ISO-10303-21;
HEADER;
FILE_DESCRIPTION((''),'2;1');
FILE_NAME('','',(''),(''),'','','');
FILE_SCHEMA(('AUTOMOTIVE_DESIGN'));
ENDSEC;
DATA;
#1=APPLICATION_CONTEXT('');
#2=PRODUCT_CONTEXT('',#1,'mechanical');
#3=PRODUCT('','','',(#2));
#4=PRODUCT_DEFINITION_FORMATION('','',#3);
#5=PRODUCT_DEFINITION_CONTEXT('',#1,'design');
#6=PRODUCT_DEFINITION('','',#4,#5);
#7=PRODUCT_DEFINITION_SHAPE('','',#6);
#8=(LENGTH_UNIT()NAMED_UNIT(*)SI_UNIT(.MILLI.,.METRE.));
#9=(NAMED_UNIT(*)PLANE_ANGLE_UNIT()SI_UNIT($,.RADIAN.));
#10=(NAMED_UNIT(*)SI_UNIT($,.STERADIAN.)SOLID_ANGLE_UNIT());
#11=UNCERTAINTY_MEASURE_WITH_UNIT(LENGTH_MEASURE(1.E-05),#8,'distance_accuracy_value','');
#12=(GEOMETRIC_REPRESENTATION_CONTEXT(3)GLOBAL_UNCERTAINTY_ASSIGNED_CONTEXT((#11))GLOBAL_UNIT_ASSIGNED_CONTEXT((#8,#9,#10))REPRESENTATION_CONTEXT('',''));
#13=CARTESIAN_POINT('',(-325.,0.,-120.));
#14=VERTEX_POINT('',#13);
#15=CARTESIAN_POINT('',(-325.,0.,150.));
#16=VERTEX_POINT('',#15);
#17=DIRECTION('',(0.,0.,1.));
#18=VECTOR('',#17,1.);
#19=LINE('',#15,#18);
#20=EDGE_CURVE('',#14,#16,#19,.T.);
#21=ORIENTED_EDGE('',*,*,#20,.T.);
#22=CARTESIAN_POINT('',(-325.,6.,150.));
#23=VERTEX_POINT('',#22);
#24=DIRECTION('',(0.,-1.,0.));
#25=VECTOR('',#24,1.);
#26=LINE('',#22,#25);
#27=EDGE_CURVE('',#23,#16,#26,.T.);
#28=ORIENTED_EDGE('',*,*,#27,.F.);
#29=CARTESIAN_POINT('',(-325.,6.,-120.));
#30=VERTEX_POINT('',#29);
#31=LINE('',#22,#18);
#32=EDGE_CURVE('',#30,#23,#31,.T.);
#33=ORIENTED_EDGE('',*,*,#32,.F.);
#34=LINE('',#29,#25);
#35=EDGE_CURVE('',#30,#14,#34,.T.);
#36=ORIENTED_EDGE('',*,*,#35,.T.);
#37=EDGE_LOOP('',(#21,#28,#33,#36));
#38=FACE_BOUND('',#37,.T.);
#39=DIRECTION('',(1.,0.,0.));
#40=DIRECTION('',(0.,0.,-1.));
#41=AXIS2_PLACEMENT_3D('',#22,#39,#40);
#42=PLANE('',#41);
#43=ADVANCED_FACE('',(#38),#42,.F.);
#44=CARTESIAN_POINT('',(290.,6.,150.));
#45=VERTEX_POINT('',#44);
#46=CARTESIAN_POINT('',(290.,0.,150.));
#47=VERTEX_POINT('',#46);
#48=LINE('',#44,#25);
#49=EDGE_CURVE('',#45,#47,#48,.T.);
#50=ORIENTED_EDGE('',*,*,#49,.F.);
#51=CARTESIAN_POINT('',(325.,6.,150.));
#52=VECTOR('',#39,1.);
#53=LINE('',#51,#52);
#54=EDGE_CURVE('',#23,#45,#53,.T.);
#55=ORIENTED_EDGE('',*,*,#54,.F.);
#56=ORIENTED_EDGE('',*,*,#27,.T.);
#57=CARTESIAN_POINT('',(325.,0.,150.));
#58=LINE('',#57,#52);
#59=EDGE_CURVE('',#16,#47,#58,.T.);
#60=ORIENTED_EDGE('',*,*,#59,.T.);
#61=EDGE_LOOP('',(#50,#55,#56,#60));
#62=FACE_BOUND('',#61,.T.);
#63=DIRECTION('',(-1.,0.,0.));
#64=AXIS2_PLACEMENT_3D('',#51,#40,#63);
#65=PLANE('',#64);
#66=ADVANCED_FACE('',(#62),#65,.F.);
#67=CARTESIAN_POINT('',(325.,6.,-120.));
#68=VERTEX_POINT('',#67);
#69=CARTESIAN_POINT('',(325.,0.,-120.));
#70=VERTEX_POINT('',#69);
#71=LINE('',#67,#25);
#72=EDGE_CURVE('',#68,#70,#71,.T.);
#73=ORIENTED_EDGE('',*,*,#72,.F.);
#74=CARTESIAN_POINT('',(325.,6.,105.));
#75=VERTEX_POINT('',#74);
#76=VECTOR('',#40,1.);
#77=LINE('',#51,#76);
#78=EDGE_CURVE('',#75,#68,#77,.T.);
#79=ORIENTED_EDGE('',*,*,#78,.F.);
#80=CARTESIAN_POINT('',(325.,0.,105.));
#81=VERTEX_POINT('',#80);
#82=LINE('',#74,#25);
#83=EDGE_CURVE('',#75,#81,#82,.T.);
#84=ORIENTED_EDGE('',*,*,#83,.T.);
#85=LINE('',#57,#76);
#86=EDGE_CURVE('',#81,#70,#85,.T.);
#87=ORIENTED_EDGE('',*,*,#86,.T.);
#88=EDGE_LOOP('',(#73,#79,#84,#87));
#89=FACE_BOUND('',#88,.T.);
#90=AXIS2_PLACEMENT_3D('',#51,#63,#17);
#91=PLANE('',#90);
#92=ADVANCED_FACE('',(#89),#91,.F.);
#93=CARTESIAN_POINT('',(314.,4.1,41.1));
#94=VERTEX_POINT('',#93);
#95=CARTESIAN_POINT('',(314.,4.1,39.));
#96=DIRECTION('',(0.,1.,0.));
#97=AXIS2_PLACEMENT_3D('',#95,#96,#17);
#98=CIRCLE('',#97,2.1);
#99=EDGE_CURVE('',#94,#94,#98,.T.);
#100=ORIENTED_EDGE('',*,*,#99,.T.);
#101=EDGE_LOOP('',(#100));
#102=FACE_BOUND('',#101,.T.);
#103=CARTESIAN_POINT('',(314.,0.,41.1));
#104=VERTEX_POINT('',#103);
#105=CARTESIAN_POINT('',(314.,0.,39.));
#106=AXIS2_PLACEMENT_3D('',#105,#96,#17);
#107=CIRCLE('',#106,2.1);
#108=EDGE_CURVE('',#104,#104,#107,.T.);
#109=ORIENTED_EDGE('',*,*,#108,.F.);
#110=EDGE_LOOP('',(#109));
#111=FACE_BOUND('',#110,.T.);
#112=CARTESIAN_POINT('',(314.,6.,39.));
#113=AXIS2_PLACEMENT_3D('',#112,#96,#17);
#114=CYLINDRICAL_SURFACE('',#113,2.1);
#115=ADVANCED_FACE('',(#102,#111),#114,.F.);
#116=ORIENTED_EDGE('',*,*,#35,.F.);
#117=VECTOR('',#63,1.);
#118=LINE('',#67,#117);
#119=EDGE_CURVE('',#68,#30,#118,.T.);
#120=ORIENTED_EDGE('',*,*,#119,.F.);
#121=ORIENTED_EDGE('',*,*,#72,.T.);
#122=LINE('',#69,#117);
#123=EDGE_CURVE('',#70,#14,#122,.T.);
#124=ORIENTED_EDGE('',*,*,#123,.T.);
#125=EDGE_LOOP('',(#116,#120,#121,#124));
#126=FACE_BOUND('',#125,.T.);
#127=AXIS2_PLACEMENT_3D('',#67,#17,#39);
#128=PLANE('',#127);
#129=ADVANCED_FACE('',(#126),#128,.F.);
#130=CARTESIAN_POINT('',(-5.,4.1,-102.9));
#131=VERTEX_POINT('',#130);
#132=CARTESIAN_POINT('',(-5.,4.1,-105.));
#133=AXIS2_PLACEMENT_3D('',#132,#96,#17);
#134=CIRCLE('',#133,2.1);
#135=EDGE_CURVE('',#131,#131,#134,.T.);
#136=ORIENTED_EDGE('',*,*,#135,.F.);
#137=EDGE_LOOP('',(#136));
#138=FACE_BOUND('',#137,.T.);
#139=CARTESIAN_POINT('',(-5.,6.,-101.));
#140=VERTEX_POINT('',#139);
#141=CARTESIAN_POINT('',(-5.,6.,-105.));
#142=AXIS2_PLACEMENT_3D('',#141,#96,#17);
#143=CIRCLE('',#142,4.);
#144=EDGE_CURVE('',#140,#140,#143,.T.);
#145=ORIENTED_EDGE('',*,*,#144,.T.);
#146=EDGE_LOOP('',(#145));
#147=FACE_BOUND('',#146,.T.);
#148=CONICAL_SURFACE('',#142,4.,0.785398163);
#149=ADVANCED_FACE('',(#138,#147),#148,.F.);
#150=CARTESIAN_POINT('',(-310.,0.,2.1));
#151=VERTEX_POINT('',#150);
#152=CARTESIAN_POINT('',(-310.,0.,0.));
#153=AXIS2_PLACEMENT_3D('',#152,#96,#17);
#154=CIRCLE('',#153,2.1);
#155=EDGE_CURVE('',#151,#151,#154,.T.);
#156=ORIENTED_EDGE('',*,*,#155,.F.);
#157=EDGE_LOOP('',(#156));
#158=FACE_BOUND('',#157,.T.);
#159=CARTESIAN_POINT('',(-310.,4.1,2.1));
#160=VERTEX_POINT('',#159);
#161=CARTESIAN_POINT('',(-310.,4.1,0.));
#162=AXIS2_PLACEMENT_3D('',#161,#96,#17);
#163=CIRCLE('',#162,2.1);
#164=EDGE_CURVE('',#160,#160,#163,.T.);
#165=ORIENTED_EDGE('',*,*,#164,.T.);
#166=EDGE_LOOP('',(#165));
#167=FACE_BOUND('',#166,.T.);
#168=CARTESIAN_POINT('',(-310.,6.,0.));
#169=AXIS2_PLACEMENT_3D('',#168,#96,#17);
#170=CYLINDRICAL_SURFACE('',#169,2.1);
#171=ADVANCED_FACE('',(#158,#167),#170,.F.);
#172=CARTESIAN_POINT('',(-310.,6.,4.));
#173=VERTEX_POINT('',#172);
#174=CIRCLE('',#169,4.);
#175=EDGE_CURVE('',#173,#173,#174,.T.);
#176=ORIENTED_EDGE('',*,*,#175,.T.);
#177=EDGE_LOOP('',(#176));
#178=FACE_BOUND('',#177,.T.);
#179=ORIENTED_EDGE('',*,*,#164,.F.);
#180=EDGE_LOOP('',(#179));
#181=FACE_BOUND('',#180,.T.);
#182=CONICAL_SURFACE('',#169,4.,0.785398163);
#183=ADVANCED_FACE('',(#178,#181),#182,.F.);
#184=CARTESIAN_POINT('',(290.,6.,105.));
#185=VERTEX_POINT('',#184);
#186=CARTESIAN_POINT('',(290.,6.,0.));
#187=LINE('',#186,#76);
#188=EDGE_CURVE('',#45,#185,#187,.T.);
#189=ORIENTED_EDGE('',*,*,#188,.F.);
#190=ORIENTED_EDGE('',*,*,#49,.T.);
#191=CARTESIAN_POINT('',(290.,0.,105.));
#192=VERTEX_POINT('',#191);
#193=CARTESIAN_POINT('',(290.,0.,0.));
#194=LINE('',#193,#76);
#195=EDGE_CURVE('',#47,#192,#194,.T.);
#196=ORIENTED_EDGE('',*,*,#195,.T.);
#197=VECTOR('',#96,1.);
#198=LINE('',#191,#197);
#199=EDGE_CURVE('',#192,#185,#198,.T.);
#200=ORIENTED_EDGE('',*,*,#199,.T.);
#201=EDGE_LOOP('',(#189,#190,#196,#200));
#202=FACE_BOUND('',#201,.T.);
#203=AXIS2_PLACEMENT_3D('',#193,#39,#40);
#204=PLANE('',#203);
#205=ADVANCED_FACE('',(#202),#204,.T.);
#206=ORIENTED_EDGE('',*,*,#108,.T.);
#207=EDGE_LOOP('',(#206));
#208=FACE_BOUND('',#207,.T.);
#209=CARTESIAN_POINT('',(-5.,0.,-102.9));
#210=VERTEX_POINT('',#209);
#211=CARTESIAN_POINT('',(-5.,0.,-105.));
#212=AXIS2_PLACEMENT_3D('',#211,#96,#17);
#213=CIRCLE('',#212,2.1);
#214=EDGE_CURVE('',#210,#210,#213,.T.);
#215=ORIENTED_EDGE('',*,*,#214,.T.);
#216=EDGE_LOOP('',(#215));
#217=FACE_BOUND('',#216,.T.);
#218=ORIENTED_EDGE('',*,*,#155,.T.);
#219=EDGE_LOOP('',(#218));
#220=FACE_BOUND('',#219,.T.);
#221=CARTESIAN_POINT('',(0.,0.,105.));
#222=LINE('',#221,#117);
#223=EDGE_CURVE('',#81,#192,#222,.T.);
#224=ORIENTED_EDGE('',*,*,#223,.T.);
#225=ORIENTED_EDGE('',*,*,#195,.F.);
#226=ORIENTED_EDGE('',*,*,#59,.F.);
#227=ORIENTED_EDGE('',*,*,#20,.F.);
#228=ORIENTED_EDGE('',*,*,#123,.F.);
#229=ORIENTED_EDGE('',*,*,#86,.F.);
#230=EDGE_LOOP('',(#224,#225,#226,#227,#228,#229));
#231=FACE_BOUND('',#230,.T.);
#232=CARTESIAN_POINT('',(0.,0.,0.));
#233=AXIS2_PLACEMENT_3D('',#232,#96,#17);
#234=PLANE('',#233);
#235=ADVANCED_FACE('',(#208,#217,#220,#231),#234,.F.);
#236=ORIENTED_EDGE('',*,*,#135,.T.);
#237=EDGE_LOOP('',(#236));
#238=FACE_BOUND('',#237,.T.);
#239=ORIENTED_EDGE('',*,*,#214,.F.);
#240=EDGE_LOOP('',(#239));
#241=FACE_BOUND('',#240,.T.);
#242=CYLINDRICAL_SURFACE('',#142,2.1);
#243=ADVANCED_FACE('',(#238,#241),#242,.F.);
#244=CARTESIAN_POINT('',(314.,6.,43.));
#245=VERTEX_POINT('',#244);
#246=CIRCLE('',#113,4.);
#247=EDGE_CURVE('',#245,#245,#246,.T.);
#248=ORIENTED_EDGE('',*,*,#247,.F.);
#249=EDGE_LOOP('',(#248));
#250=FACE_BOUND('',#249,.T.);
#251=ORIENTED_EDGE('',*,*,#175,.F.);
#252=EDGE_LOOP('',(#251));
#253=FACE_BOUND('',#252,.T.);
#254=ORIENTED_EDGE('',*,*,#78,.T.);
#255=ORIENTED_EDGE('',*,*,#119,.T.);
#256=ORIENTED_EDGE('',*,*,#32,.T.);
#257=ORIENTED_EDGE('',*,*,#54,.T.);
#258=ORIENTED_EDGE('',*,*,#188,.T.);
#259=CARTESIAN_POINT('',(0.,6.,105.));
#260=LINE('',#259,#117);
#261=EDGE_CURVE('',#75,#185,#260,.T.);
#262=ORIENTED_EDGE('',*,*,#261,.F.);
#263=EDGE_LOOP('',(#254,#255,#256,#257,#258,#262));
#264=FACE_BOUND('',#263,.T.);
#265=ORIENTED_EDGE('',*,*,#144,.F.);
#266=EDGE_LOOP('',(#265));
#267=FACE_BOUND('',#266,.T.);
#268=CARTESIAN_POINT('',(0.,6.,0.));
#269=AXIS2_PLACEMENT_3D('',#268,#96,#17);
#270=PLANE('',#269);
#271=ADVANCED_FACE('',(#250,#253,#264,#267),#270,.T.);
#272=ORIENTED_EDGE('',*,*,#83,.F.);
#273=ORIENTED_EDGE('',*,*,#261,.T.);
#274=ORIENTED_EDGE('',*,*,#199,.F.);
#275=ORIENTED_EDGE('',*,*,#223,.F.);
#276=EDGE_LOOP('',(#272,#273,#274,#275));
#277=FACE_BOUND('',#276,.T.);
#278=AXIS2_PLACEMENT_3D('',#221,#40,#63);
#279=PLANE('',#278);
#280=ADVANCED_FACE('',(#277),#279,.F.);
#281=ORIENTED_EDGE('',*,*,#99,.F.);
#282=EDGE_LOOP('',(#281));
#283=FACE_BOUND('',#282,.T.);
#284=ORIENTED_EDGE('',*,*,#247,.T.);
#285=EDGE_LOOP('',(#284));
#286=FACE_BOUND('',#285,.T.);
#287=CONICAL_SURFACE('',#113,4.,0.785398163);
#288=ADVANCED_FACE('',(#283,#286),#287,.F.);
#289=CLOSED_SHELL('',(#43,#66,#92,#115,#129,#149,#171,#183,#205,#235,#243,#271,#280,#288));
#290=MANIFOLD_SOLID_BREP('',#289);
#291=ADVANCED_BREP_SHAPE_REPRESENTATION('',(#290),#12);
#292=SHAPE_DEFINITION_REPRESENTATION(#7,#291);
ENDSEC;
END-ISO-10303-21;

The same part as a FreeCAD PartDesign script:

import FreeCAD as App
import Part
import Sketcher

V = App.Vector
Q = App.Units.Quantity


def add_polygon(sketch, points):
    """Adds a closed chain of lines whose ends are joined by coincident constraints."""
    first, n = sketch.GeometryCount, len(points)
    for a, b in zip(points, points[1:] + points[:1]):
        sketch.addGeometry(Part.LineSegment(App.Vector(*a, 0), App.Vector(*b, 0)), False)
    for i in range(n):
        sketch.addConstraint(Sketcher.Constraint("Coincident", first + i, 2, first + (i + 1) % n, 1))

doc = App.newDocument("Part")
body = doc.addObject("PartDesign::Body", "Body")

sketch1 = body.newObject("Sketcher::SketchObject", "Sketch")
sketch1.AttachmentSupport = (doc.getObject("XZ_Plane"), [""])
sketch1.MapMode = "FlatFace"
add_polygon(sketch1, [(-325, -120), (-325, 150), (325, 150), (325, -120)])
sketch1.addConstraint([
    Sketcher.Constraint("Vertical", 0),
    Sketcher.Constraint("Horizontal", 1),
    Sketcher.Constraint("Vertical", 2),
    Sketcher.Constraint("Horizontal", 3),
    Sketcher.Constraint("DistanceX", 1, 1, 1, 2, Q("650 mm")),
    Sketcher.Constraint("DistanceY", 0, 1, 0, 2, Q("270 mm")),
    Sketcher.Constraint("DistanceX", 0, 2, -1, 1, Q("325 mm")),
    Sketcher.Constraint("DistanceY", -1, 1, 0, 2, Q("150 mm")),
])
pad1 = body.newObject("PartDesign::Pad", "Pad")
pad1.Profile = sketch1
pad1.Length = 6
pad1.Reversed = True

sketch2 = body.newObject("Sketcher::SketchObject", "Sketch001")
sketch2.AttachmentSupport = (doc.getObject("XZ_Plane"), [""])
sketch2.MapMode = "FlatFace"
sketch2.AttachmentOffset = App.Placement(V(0, 0, -6), App.Rotation())
add_polygon(sketch2, [(290, 105), (290, 185.199939), (337.933435, 185.199939), (337.933435, 105)])
sketch2.addConstraint([
    Sketcher.Constraint("Vertical", 0),
    Sketcher.Constraint("Horizontal", 1),
    Sketcher.Constraint("Vertical", 2),
    Sketcher.Constraint("Horizontal", 3),
    Sketcher.Constraint("DistanceX", -1, 1, 0, 2, Q("290 mm")),
    Sketcher.Constraint("DistanceY", -1, 1, 2, 2, Q("105 mm")),
    Sketcher.Constraint("DistanceY", 0, 1, 0, 2, Q("80.199939 mm")),
    Sketcher.Constraint("DistanceX", 1, 1, 1, 2, Q("47.933435 mm")),
])
pocket1 = body.newObject("PartDesign::Pocket", "Pocket")
pocket1.Profile = sketch2
pocket1.Type = "ThroughAll"
pocket1.Reversed = True

sketch3 = body.newObject("Sketcher::SketchObject", "Sketch002")
sketch3.AttachmentSupport = (doc.getObject("XZ_Plane"), [""])
sketch3.MapMode = "FlatFace"
sketch3.AttachmentOffset = App.Placement(V(0, 0, -6), App.Rotation())
sketch3.addGeometry([
    Part.Circle(V(-310, 0, 0), V(0, 0, 1), 2.1),
    Part.Circle(V(-5, -105, 0), V(0, 0, 1), 2.1),
    Part.Circle(V(314, 39, 0), V(0, 0, 1), 2.1),
], False)
sketch3.addConstraint([
    Sketcher.Constraint("Equal", 0, 1),
    Sketcher.Constraint("Equal", 1, 2),
    Sketcher.Constraint("PointOnObject", 0, 3, -1),
    Sketcher.Constraint("Diameter", 0, Q("4.2 mm")),
    Sketcher.Constraint("DistanceX", 0, 3, -1, 1, Q("310 mm")),
    Sketcher.Constraint("DistanceX", 1, 3, -1, 1, Q("5 mm")),
    Sketcher.Constraint("DistanceY", 1, 3, -1, 1, Q("105 mm")),
    Sketcher.Constraint("DistanceX", -1, 1, 2, 3, Q("314 mm")),
    Sketcher.Constraint("DistanceY", -1, 1, 2, 3, Q("39 mm")),
])
doc.recompute()
hole = body.newObject("PartDesign::Hole", "Hole")
hole.Profile = sketch3
hole.ThreadType = "None"
hole.Diameter = 4.2
hole.DepthType = "ThroughAll"
hole.HoleCutType = "Countersink"
hole.HoleCutDiameter = 8
hole.HoleCutCountersinkAngle = 90
hole.Reversed = True

doc.recompute()
